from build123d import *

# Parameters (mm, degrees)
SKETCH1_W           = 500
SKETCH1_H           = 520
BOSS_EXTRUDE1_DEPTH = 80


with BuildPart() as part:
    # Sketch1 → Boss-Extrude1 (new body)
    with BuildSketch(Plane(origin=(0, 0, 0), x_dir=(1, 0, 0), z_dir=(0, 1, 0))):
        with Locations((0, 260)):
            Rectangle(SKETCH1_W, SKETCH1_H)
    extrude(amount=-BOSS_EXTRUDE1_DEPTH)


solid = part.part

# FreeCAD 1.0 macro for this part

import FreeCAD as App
import Part
import Sketcher
Q = App.Units.Quantity


def add_polygon(sketch, points):
    """Adds a closed chain of lines whose ends are joined by coincident constraints."""
    first, n = sketch.GeometryCount, len(points)
    for a, b in zip(points, points[1:] + points[:1]):
        sketch.addGeometry(Part.LineSegment(App.Vector(*a, 0), App.Vector(*b, 0)), False)
    for i in range(n):
        sketch.addConstraint(Sketcher.Constraint("Coincident", first + i, 2, first + (i + 1) % n, 1))

doc = App.newDocument("Part")
body = doc.addObject("PartDesign::Body", "Body")

# Sketch on XZ plane
sketch1 = doc.addObject("Sketcher::SketchObject", "Sketch")
body.addObject(sketch1)
sketch1.AttachmentSupport = (doc.XZ_Plane, [""])
sketch1.MapMode = "FlatFace"
add_polygon(sketch1, [(-250, -520), (-250, 0), (250, 0), (250, -520)])  # lines 0-3
sketch1.addConstraint(Sketcher.Constraint("Vertical", 0))
sketch1.addConstraint(Sketcher.Constraint("Horizontal", 1))
sketch1.addConstraint(Sketcher.Constraint("Vertical", 2))
sketch1.addConstraint(Sketcher.Constraint("Horizontal", 3))
sketch1.addConstraint(Sketcher.Constraint("Symmetric", 0, 2, 1, 2, -1, 1))
sketch1.addConstraint(Sketcher.Constraint("DistanceX", 1, 1, 1, 2, Q("500 mm")))
sketch1.addConstraint(Sketcher.Constraint("DistanceY", 0, 1, 0, 2, Q("520 mm")))
pad1 = doc.addObject("PartDesign::Pad", "Pad")
body.addObject(pad1)
pad1.Profile = sketch1
pad1.Length = 80

doc.recompute()
